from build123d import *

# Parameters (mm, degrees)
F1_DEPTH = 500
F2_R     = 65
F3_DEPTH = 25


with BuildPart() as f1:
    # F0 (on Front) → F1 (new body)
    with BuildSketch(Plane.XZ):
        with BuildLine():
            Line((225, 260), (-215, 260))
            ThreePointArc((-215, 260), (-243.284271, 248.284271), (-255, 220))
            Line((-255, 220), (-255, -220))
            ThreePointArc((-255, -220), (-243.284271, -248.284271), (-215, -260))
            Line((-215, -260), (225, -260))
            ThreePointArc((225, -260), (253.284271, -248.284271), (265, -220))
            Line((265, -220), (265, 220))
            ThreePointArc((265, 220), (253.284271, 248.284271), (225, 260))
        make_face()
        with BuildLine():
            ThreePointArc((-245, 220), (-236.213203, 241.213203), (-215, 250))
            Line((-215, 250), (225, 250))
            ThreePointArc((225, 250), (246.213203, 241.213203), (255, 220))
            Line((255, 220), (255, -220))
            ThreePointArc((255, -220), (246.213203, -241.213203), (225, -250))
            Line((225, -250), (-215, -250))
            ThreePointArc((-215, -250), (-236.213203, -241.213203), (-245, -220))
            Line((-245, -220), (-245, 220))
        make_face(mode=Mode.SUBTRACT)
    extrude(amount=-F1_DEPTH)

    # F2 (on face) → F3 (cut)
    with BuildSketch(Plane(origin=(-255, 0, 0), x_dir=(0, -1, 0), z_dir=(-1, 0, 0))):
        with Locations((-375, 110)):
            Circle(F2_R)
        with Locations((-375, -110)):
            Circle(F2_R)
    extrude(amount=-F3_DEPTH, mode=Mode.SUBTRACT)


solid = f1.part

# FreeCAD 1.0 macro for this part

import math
import FreeCAD as App
import Part
import Sketcher
from FreeCAD import Vector

doc = App.newDocument("Part")
params = doc.addObject("Spreadsheet::Sheet", "Params")
for row, (alias, value) in enumerate([
    ("sketch1_radius", "40.000001 mm"),
    ("sketch1_radius2", "30.000001 mm"),
    ("sketch1_width", "440 mm"),
    ("pad1_length", "500 mm"),
    ("sketch2_diameter", "130 mm"),
    ("pocket1_length", "25 mm"),
], start=1):
    params.set(f"A{row}", alias)
    params.set(f"B{row}", "=" + value)
    params.setAlias(f"B{row}", alias)

body = doc.addObject("PartDesign::Body", "Body")

# Sketch on XZ plane
sketch1 = body.newObject("Sketcher::SketchObject", "Sketch")
sketch1.AttachmentSupport = (doc.getObject("XZ_Plane"), [""])
sketch1.MapMode = "FlatFace"
sketch1.addGeometry([
    Part.LineSegment(Vector(225, 260, 0), Vector(-215, 260, 0)),  # 0
    Part.ArcOfCircle(Part.Circle(Vector(-215, 220, 0), Vector(0, 0, 1), 40), math.radians(90), math.radians(180)),  # 1
    Part.LineSegment(Vector(-255, 220, 0), Vector(-255, -220, 0)),  # 2
    Part.ArcOfCircle(Part.Circle(Vector(-215, -220, 0), Vector(0, 0, 1), 40), math.radians(-180), math.radians(-90)),  # 3
    Part.LineSegment(Vector(-215, -260, 0), Vector(225, -260, 0)),  # 4
    Part.ArcOfCircle(Part.Circle(Vector(225, -220, 0), Vector(0, 0, 1), 40), math.radians(-90), math.radians(0)),  # 5
    Part.LineSegment(Vector(265, -220, 0), Vector(265, 220, 0)),  # 6
    Part.ArcOfCircle(Part.Circle(Vector(225, 220, 0), Vector(0, 0, 1), 40), math.radians(0), math.radians(90)),  # 7
    Part.LineSegment(Vector(-245, -220, 0), Vector(-245, 220, 0)),  # 8
    Part.ArcOfCircle(Part.Circle(Vector(-215, 220, 0), Vector(0, 0, 1), 30), math.radians(90), math.radians(180)),  # 9
    Part.LineSegment(Vector(-215, 250, 0), Vector(225, 250, 0)),  # 10
    Part.ArcOfCircle(Part.Circle(Vector(225, 220, 0), Vector(0, 0, 1), 30), math.radians(0), math.radians(90)),  # 11
    Part.LineSegment(Vector(255, 220, 0), Vector(255, -220, 0)),  # 12
    Part.ArcOfCircle(Part.Circle(Vector(225, -220, 0), Vector(0, 0, 1), 30), math.radians(-90), math.radians(0)),  # 13
    Part.LineSegment(Vector(225, -250, 0), Vector(-215, -250, 0)),  # 14
    Part.ArcOfCircle(Part.Circle(Vector(-215, -220, 0), Vector(0, 0, 1), 30), math.radians(-180), math.radians(-90)),  # 15
], False)
sketch1.addConstraint([
    Sketcher.Constraint("Tangent", 0, 2, 1, 1),
    Sketcher.Constraint("Tangent", 1, 2, 2, 1),
    Sketcher.Constraint("Tangent", 2, 2, 3, 1),
    Sketcher.Constraint("Tangent", 3, 2, 4, 1),
    Sketcher.Constraint("Tangent", 4, 2, 5, 1),
    Sketcher.Constraint("Tangent", 5, 2, 6, 1),
    Sketcher.Constraint("Tangent", 6, 2, 7, 1),
    Sketcher.Constraint("Tangent", 7, 2, 0, 1),
    Sketcher.Constraint("Tangent", 8, 2, 9, 2),
    Sketcher.Constraint("Tangent", 9, 1, 10, 1),
    Sketcher.Constraint("Tangent", 10, 2, 11, 2),
    Sketcher.Constraint("Tangent", 11, 1, 12, 1),
    Sketcher.Constraint("Tangent", 12, 2, 13, 2),
    Sketcher.Constraint("Tangent", 13, 1, 14, 1),
    Sketcher.Constraint("Tangent", 14, 2, 15, 2),
    Sketcher.Constraint("Tangent", 15, 1, 8, 1),
    Sketcher.Constraint("Horizontal", 0),
    Sketcher.Constraint("Vertical", 2),
    Sketcher.Constraint("Horizontal", 4),
    Sketcher.Constraint("Vertical", 6),
    Sketcher.Constraint("Vertical", 8),
    Sketcher.Constraint("Horizontal", 10),
    Sketcher.Constraint("Vertical", 12),
    Sketcher.Constraint("Horizontal", 14),
    Sketcher.Constraint("Coincident", 9, 3, 1, 3),
    Sketcher.Constraint("Coincident", 11, 3, 7, 3),
    Sketcher.Constraint("Coincident", 13, 3, 5, 3),
    Sketcher.Constraint("Equal", 1, 3),
    Sketcher.Constraint("Equal", 3, 5),
    Sketcher.Constraint("Equal", 5, 7),
    Sketcher.Constraint("Equal", 13, 15),
    Sketcher.Constraint("Symmetric", 2, 2, 11, 1, -1, 1),
    Sketcher.Constraint("Equal", 14, 2),
    Sketcher.Constraint("Radius", 1, 40.000001),
    Sketcher.Constraint("Radius", 9, 30.000001),
    Sketcher.Constraint("DistanceX", 0, 2, 0, 1, 440.0),
])
sketch1.setExpression("Constraints[33]", "Params.sketch1_radius")
sketch1.setExpression("Constraints[34]", "Params.sketch1_radius2")
sketch1.setExpression("Constraints[35]", "Params.sketch1_width")
pad1 = body.newObject("PartDesign::Pad", "Pad")
pad1.Profile = sketch1
pad1.setExpression("Length", "Params.pad1_length")
pad1.Reversed = True

# Sketch on YZ plane
sketch2 = body.newObject("Sketcher::SketchObject", "Sketch001")
sketch2.AttachmentSupport = (doc.getObject("YZ_Plane"), [""])
sketch2.MapMode = "FlatFace"
sketch2.AttachmentOffset = App.Placement(Vector(0, 0, -255), App.Rotation())
sketch2.addGeometry([
    Part.Circle(Vector(375, 110, 0), Vector(0, 0, 1), 65),
    Part.Circle(Vector(375, -110, 0), Vector(0, 0, 1), 65),
], False)
sketch2.addConstraint([
    Sketcher.Constraint("Equal", 0, 1),
    Sketcher.Constraint("Symmetric", 0, 3, 1, 3, -1),
    Sketcher.Constraint("Diameter", 0, 130.0),
    Sketcher.Constraint("DistanceX", -1, 1, 0, 3, 375.0),
    Sketcher.Constraint("DistanceY", -1, 1, 0, 3, 110.0),
])
sketch2.setExpression("Constraints[2]", "Params.sketch2_diameter")
pocket1 = body.newObject("PartDesign::Pocket", "Pocket")
pocket1.Profile = sketch2
pocket1.setExpression("Length", "Params.pocket1_length")
pocket1.Reversed = True

doc.recompute()
